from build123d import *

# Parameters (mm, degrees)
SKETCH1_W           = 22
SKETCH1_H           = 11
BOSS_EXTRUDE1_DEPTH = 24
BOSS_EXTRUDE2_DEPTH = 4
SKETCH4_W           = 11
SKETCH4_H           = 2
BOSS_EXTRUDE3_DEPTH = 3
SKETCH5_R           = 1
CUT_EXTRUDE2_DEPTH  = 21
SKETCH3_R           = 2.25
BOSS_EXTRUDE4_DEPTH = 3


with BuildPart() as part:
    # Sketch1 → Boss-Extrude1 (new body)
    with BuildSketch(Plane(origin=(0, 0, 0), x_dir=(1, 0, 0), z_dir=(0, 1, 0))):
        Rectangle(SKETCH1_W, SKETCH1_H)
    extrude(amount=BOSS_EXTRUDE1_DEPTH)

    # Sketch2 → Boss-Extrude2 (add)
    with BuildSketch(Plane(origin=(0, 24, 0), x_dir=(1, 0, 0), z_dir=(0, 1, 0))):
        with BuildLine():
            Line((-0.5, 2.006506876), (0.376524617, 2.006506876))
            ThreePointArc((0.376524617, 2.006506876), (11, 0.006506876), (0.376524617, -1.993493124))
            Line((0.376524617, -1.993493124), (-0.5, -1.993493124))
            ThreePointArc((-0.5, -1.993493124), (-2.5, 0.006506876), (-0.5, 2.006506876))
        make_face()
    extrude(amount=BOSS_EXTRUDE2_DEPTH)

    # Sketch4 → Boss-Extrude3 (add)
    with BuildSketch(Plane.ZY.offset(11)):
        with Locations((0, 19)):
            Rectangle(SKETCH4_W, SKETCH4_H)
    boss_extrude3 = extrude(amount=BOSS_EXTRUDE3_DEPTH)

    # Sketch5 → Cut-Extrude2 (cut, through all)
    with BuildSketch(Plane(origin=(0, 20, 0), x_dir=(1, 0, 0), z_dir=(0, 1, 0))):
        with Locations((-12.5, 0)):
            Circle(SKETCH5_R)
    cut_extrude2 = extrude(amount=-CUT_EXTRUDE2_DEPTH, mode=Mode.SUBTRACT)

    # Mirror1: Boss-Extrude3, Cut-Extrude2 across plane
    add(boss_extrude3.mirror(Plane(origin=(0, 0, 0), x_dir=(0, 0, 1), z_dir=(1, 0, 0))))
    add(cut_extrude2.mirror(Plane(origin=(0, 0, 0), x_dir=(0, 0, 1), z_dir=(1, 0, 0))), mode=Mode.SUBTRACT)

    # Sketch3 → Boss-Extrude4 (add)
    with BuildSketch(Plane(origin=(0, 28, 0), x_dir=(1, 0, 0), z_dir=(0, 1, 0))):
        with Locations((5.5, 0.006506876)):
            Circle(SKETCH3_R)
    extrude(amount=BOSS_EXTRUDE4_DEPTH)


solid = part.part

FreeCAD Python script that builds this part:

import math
import FreeCAD as App
import Part
import Sketcher
from FreeCAD import Vector
Q = App.Units.Quantity

doc = App.newDocument("Part")
params = doc.addObject("Spreadsheet::Sheet", "Params")
for row, (alias, value) in enumerate([
    ("sketch1_width", "22 mm"),
    ("sketch1_height", "11 mm"),
    ("pad1_length", "24 mm"),
    ("sketch2_radius", "2 mm"),
    ("sketch2_radius2", "5.5 mm"),
    ("pad2_length", "4 mm"),
    ("sketch3_width", "2 mm"),
    ("sketch3_height", "11 mm"),
    ("pad3_length", "3 mm"),
    ("sketch4_diameter", "2 mm"),
    ("sketch5_diameter", "4.5 mm"),
    ("pad4_length", "3 mm"),
], start=1):
    params.set(f"A{row}", alias)
    params.set(f"B{row}", "=" + value)
    params.setAlias(f"B{row}", alias)

body = doc.addObject("PartDesign::Body", "Body")

# Sketch on XZ plane
sketch1 = body.newObject("Sketcher::SketchObject", "Sketch")
sketch1.AttachmentSupport = (doc.getObject("XZ_Plane"), [""])
sketch1.MapMode = "FlatFace"
sketch1.addGeometry(Part.LineSegment(Vector(-11, -6, 0), Vector(-11, 6, 0)), False)
sketch1.addGeometry(Part.LineSegment(Vector(-11, 6, 0), Vector(11, 6, 0)), False)
sketch1.addGeometry(Part.LineSegment(Vector(11, 6, 0), Vector(11, -6, 0)), False)
sketch1.addGeometry(Part.LineSegment(Vector(11, -6, 0), Vector(-11, -6, 0)), False)
sketch1.addConstraint(Sketcher.Constraint("Coincident", 0, 2, 1, 1))
sketch1.addConstraint(Sketcher.Constraint("Coincident", 1, 2, 2, 1))
sketch1.addConstraint(Sketcher.Constraint("Coincident", 2, 2, 3, 1))
sketch1.addConstraint(Sketcher.Constraint("Coincident", 3, 2, 0, 1))
sketch1.addConstraint(Sketcher.Constraint("Vertical", 0))
sketch1.addConstraint(Sketcher.Constraint("Horizontal", 1))
sketch1.addConstraint(Sketcher.Constraint("Vertical", 2))
sketch1.addConstraint(Sketcher.Constraint("Horizontal", 3))
sketch1.addConstraint(Sketcher.Constraint("Symmetric", 0, 2, 2, 2, -1, 1))
sketch1.addConstraint(Sketcher.Constraint("DistanceX", 1, 1, 1, 2, Q("22 mm")))
sketch1.addConstraint(Sketcher.Constraint("DistanceY", 0, 1, 0, 2, Q("11 mm")))
sketch1.setExpression("Constraints[9]", "Params.sketch1_width")
sketch1.setExpression("Constraints[10]", "Params.sketch1_height")
pad1 = body.newObject("PartDesign::Pad", "Pad")
pad1.Profile = sketch1
pad1.setExpression("Length", "Params.pad1_length")
pad1.Reversed = True

# Sketch on XZ plane
sketch2 = body.newObject("Sketcher::SketchObject", "Sketch001")
sketch2.AttachmentSupport = (doc.getObject("XZ_Plane"), [""])
sketch2.MapMode = "FlatFace"
sketch2.AttachmentOffset = App.Placement(Vector(0, 0, -24), App.Rotation())
sketch2.addGeometry(Part.LineSegment(Vector(0.4, -2, 0), Vector(-0.5, -2, 0)), False)
sketch2.addGeometry(Part.ArcOfCircle(Part.Circle(Vector(-0.5, 0, 0), Vector(0, 0, 1), 2), math.radians(90), math.radians(270)), False)
sketch2.addGeometry(Part.LineSegment(Vector(-0.5, 2, 0), Vector(0.4, 2, 0)), False)
sketch2.addGeometry(Part.ArcOfCircle(Part.Circle(Vector(5.5, 0, 0), Vector(0, 0, 1), 5.5), math.radians(-159), math.radians(159)), False)
sketch2.addConstraint(Sketcher.Constraint("Tangent", 0, 2, 1, 2))
sketch2.addConstraint(Sketcher.Constraint("Tangent", 1, 1, 2, 1))
sketch2.addConstraint(Sketcher.Constraint("Coincident", 2, 2, 3, 2))
sketch2.addConstraint(Sketcher.Constraint("Coincident", 3, 1, 0, 1))
sketch2.addConstraint(Sketcher.Constraint("Horizontal", 0))
sketch2.addConstraint(Sketcher.Constraint("Horizontal", 2))
sketch2.addConstraint(Sketcher.Constraint("Horizontal", 1, 3, 3, 3))
sketch2.addConstraint(Sketcher.Constraint("Radius", 1, Q("2 mm")))
sketch2.addConstraint(Sketcher.Constraint("Radius", 3, Q("5.5 mm")))
sketch2.addConstraint(Sketcher.Constraint("DistanceX", 1, 3, 3, 3, Q("6 mm")))
sketch2.addConstraint(Sketcher.Constraint("DistanceX", 1, 3, -1, 1, Q("0.5 mm")))
sketch2.addConstraint(Sketcher.Constraint("DistanceY", 1, 3, -1, 1, Q("0.006507 mm")))
sketch2.setExpression("Constraints[7]", "Params.sketch2_radius")
sketch2.setExpression("Constraints[8]", "Params.sketch2_radius2")
pad2 = body.newObject("PartDesign::Pad", "Pad001")
pad2.Profile = sketch2
pad2.setExpression("Length", "Params.pad2_length")
pad2.Reversed = True

# Sketch on YZ plane
sketch3 = body.newObject("Sketcher::SketchObject", "Sketch002")
sketch3.AttachmentSupport = (doc.getObject("YZ_Plane"), [""])
sketch3.MapMode = "FlatFace"
sketch3.AttachmentOffset = App.Placement(Vector(0, 0, -11), App.Rotation())
sketch3.addGeometry(Part.LineSegment(Vector(20, -5.5, 0), Vector(18, -5.5, 0)), False)
sketch3.addGeometry(Part.LineSegment(Vector(18, -5.5, 0), Vector(18, 5.5, 0)), False)
sketch3.addGeometry(Part.LineSegment(Vector(18, 5.5, 0), Vector(20, 5.5, 0)), False)
sketch3.addGeometry(Part.LineSegment(Vector(20, 5.5, 0), Vector(20, -5.5, 0)), False)
sketch3.addConstraint(Sketcher.Constraint("Coincident", 0, 2, 1, 1))
sketch3.addConstraint(Sketcher.Constraint("Coincident", 1, 2, 2, 1))
sketch3.addConstraint(Sketcher.Constraint("Coincident", 2, 2, 3, 1))
sketch3.addConstraint(Sketcher.Constraint("Coincident", 3, 2, 0, 1))
sketch3.addConstraint(Sketcher.Constraint("Horizontal", 0))
sketch3.addConstraint(Sketcher.Constraint("Vertical", 1))
sketch3.addConstraint(Sketcher.Constraint("Horizontal", 2))
sketch3.addConstraint(Sketcher.Constraint("Vertical", 3))
sketch3.addConstraint(Sketcher.Constraint("DistanceX", 0, 2, 0, 1, Q("2 mm")))
sketch3.addConstraint(Sketcher.Constraint("DistanceY", 1, 1, 1, 2, Q("11 mm")))
sketch3.addConstraint(Sketcher.Constraint("DistanceX", -1, 1, 0, 2, Q("18 mm")))
sketch3.addConstraint(Sketcher.Constraint("DistanceY", 0, 2, -1, 1, Q("5.5 mm")))
sketch3.setExpression("Constraints[8]", "Params.sketch3_width")
sketch3.setExpression("Constraints[9]", "Params.sketch3_height")
pad3 = body.newObject("PartDesign::Pad", "Pad002")
pad3.Profile = sketch3
pad3.setExpression("Length", "Params.pad3_length")
pad3.Reversed = True

# Sketch on XZ plane
sketch4 = body.newObject("Sketcher::SketchObject", "Sketch003")
sketch4.AttachmentSupport = (doc.getObject("XZ_Plane"), [""])
sketch4.MapMode = "FlatFace"
sketch4.AttachmentOffset = App.Placement(Vector(0, 0, -20), App.Rotation())
sketch4.addGeometry(Part.Circle(Vector(-12.5, 0, 0), Vector(0, 0, 1), 1), False)
sketch4.addConstraint(Sketcher.Constraint("PointOnObject", 0, 3, -1))
sketch4.addConstraint(Sketcher.Constraint("Diameter", 0, Q("2 mm")))
sketch4.addConstraint(Sketcher.Constraint("DistanceX", 0, 3, -1, 1, Q("12.5 mm")))
sketch4.setExpression("Constraints[1]", "Params.sketch4_diameter")
pocket1 = body.newObject("PartDesign::Pocket", "Pocket")
pocket1.Profile = sketch4
pocket1.Type = "ThroughAll"
pocket1.Reversed = True
doc.recompute()

mirrored = body.newObject("PartDesign::Mirrored", "Mirrored")
mirrored.Originals = [pad3, pocket1]
mirrored.MirrorPlane = (doc.getObject("YZ_Plane"), [""])
body.Tip = mirrored

# Sketch on XZ plane
sketch5 = body.newObject("Sketcher::SketchObject", "Sketch004")
sketch5.AttachmentSupport = (doc.getObject("XZ_Plane"), [""])
sketch5.MapMode = "FlatFace"
sketch5.AttachmentOffset = App.Placement(Vector(0, 0, -28), App.Rotation())
sketch5.addGeometry(Part.Circle(Vector(5.5, 0, 0), Vector(0, 0, 1), 2.2), False)
sketch5.addConstraint(Sketcher.Constraint("Diameter", 0, Q("4.5 mm")))
sketch5.addConstraint(Sketcher.Constraint("DistanceX", -1, 1, 0, 3, Q("5.5 mm")))
sketch5.addConstraint(Sketcher.Constraint("DistanceY", 0, 3, -1, 1, Q("0.006507 mm")))
sketch5.setExpression("Constraints[0]", "Params.sketch5_diameter")
pad4 = body.newObject("PartDesign::Pad", "Pad003")
pad4.Profile = sketch5
pad4.setExpression("Length", "Params.pad4_length")
pad4.Reversed = True

doc.recompute()
